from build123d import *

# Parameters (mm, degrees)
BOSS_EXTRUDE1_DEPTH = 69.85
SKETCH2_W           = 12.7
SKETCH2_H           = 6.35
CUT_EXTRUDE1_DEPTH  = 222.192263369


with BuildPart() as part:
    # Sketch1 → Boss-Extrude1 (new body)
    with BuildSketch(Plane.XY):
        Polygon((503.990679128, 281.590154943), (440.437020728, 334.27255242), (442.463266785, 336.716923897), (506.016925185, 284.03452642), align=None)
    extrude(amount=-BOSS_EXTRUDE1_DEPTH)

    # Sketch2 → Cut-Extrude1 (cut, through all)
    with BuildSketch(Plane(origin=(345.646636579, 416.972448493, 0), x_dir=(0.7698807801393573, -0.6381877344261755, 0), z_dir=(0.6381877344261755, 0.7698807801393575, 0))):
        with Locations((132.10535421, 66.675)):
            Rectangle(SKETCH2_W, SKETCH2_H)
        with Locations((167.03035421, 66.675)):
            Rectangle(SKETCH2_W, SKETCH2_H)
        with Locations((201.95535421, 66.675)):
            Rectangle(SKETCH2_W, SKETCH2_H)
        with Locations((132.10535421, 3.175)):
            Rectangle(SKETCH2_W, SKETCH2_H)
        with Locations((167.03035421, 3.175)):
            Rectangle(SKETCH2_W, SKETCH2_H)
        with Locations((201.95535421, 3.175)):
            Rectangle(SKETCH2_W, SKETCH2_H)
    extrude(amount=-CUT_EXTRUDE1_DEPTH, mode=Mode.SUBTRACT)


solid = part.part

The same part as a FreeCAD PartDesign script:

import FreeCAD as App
import Part
import Sketcher
Q = App.Units.Quantity

doc = App.newDocument("Part")
params = doc.addObject("Spreadsheet::Sheet", "Params")
for row, (alias, value) in enumerate([
    ("sketch1_length", "3.25 in"),
    ("sketch1_length2", "0.125 in"),
    ("pad1_length", "2.75 in"),
    ("sketch2_width", "0.5 in"),
    ("sketch2_height", "0.25 in"),
], start=1):
    params.set(f"A{row}", alias)
    params.set(f"B{row}", "=" + value)
    params.setAlias(f"B{row}", alias)

body = doc.addObject("PartDesign::Body", "Body")

# Sketch on XY plane
sketch1 = body.newObject("Sketcher::SketchObject", "Sketch")
sketch1.AttachmentSupport = (doc.getObject("XY_Plane"), [""])
sketch1.MapMode = "FlatFace"
sketch1.addGeometry([
    Part.LineSegment(App.Vector(440.4, 334.3, 0), App.Vector(504, 281.6, 0)),
    Part.LineSegment(App.Vector(504, 281.6, 0), App.Vector(506, 284, 0)),
    Part.LineSegment(App.Vector(506, 284, 0), App.Vector(442.5, 336.7, 0)),
    Part.LineSegment(App.Vector(442.5, 336.7, 0), App.Vector(440.4, 334.3, 0)),
], False)
sketch1.addConstraint([
    Sketcher.Constraint("Coincident", 0, 2, 1, 1),
    Sketcher.Constraint("Coincident", 1, 2, 2, 1),
    Sketcher.Constraint("Coincident", 2, 2, 3, 1),
    Sketcher.Constraint("Coincident", 3, 2, 0, 1),
    Sketcher.Constraint("Perpendicular", 0, 1),
    Sketcher.Constraint("Perpendicular", 1, 2),
    Sketcher.Constraint("Perpendicular", 2, 3),
    Sketcher.Constraint("Distance", 0, Q("3.25 in")),
    Sketcher.Constraint("Distance", 1, Q("0.125 in")),
    Sketcher.Constraint("DistanceX", -1, 1, 0, 2, 503.990679),
    Sketcher.Constraint("DistanceX", -1, 1, 3, 2, 440.437021),
    Sketcher.Constraint("DistanceY", -1, 1, 0, 2, 281.590155),
])
sketch1.setExpression("Constraints[7]", "Params.sketch1_length")
sketch1.setExpression("Constraints[8]", "Params.sketch1_length2")
pad1 = body.newObject("PartDesign::Pad", "Pad")
pad1.Profile = sketch1
pad1.setExpression("Length", "Params.pad1_length")
pad1.Reversed = True

# Sketch on an angled plane
sketch2 = body.newObject("Sketcher::SketchObject", "Sketch001")
sketch2.Placement = App.Placement(App.Vector(345.646637, 416.972448, 0), App.Rotation(App.Vector(0.76988078, -0.638187734, 0), App.Vector(0, 0, -0.999999999), App.Vector(0.638187734, 0.76988078, 0), "ZXY"))
sketch2.addGeometry([
    Part.LineSegment(App.Vector(126, 70, 0), App.Vector(126, 63, 0)),  # 0
    Part.LineSegment(App.Vector(126, 63, 0), App.Vector(138, 63, 0)),  # 1
    Part.LineSegment(App.Vector(138, 63, 0), App.Vector(138, 70, 0)),  # 2
    Part.LineSegment(App.Vector(138, 70, 0), App.Vector(126, 70, 0)),  # 3
    Part.LineSegment(App.Vector(161, 70, 0), App.Vector(161, 63, 0)),  # 4
    Part.LineSegment(App.Vector(161, 63, 0), App.Vector(173, 63, 0)),  # 5
    Part.LineSegment(App.Vector(173, 63, 0), App.Vector(173, 70, 0)),  # 6
    Part.LineSegment(App.Vector(173, 70, 0), App.Vector(161, 70, 0)),  # 7
    Part.LineSegment(App.Vector(196, 70, 0), App.Vector(196, 63, 0)),  # 8
    Part.LineSegment(App.Vector(196, 63, 0), App.Vector(208, 63, 0)),  # 9
    Part.LineSegment(App.Vector(208, 63, 0), App.Vector(208, 70, 0)),  # 10
    Part.LineSegment(App.Vector(208, 70, 0), App.Vector(196, 70, 0)),  # 11
    Part.LineSegment(App.Vector(126, 6, 0), App.Vector(126, 0, 0)),  # 12
    Part.LineSegment(App.Vector(126, 0, 0), App.Vector(138, 0, 0)),  # 13
    Part.LineSegment(App.Vector(138, 0, 0), App.Vector(138, 6, 0)),  # 14
    Part.LineSegment(App.Vector(138, 6, 0), App.Vector(126, 6, 0)),  # 15
    Part.LineSegment(App.Vector(161, 6, 0), App.Vector(161, 0, 0)),  # 16
    Part.LineSegment(App.Vector(161, 0, 0), App.Vector(173, 0, 0)),  # 17
    Part.LineSegment(App.Vector(173, 0, 0), App.Vector(173, 6, 0)),  # 18
    Part.LineSegment(App.Vector(173, 6, 0), App.Vector(161, 6, 0)),  # 19
    Part.LineSegment(App.Vector(196, 6, 0), App.Vector(196, 0, 0)),  # 20
    Part.LineSegment(App.Vector(196, 0, 0), App.Vector(208, 0, 0)),  # 21
    Part.LineSegment(App.Vector(208, 0, 0), App.Vector(208, 6, 0)),  # 22
    Part.LineSegment(App.Vector(208, 6, 0), App.Vector(196, 6, 0)),  # 23
], False)
sketch2.addConstraint([
    Sketcher.Constraint("Coincident", 0, 2, 1, 1),
    Sketcher.Constraint("Coincident", 1, 2, 2, 1),
    Sketcher.Constraint("Coincident", 2, 2, 3, 1),
    Sketcher.Constraint("Coincident", 3, 2, 0, 1),
    Sketcher.Constraint("Coincident", 4, 2, 5, 1),
    Sketcher.Constraint("Coincident", 5, 2, 6, 1),
    Sketcher.Constraint("Coincident", 6, 2, 7, 1),
    Sketcher.Constraint("Coincident", 7, 2, 4, 1),
    Sketcher.Constraint("Coincident", 8, 2, 9, 1),
    Sketcher.Constraint("Coincident", 9, 2, 10, 1),
    Sketcher.Constraint("Coincident", 10, 2, 11, 1),
    Sketcher.Constraint("Coincident", 11, 2, 8, 1),
    Sketcher.Constraint("Coincident", 12, 2, 13, 1),
    Sketcher.Constraint("Coincident", 13, 2, 14, 1),
    Sketcher.Constraint("Coincident", 14, 2, 15, 1),
    Sketcher.Constraint("Coincident", 15, 2, 12, 1),
    Sketcher.Constraint("Coincident", 16, 2, 17, 1),
    Sketcher.Constraint("Coincident", 17, 2, 18, 1),
    Sketcher.Constraint("Coincident", 18, 2, 19, 1),
    Sketcher.Constraint("Coincident", 19, 2, 16, 1),
    Sketcher.Constraint("Coincident", 20, 2, 21, 1),
    Sketcher.Constraint("Coincident", 21, 2, 22, 1),
    Sketcher.Constraint("Coincident", 22, 2, 23, 1),
    Sketcher.Constraint("Coincident", 23, 2, 20, 1),
    Sketcher.Constraint("Vertical", 0),
    Sketcher.Constraint("Horizontal", 1),
    Sketcher.Constraint("Vertical", 2),
    Sketcher.Constraint("Horizontal", 3),
    Sketcher.Constraint("Vertical", 4),
    Sketcher.Constraint("Horizontal", 5),
    Sketcher.Constraint("Vertical", 6),
    Sketcher.Constraint("Horizontal", 7),
    Sketcher.Constraint("Vertical", 8),
    Sketcher.Constraint("Horizontal", 9),
    Sketcher.Constraint("Vertical", 10),
    Sketcher.Constraint("Horizontal", 11),
    Sketcher.Constraint("Vertical", 12),
    Sketcher.Constraint("Horizontal", 13),
    Sketcher.Constraint("Vertical", 14),
    Sketcher.Constraint("Horizontal", 15),
    Sketcher.Constraint("Vertical", 16),
    Sketcher.Constraint("Horizontal", 17),
    Sketcher.Constraint("Vertical", 18),
    Sketcher.Constraint("Horizontal", 19),
    Sketcher.Constraint("Vertical", 20),
    Sketcher.Constraint("Horizontal", 21),
    Sketcher.Constraint("Vertical", 22),
    Sketcher.Constraint("Horizontal", 23),
    Sketcher.Constraint("PointOnObject", 12, 2, -1),
    Sketcher.Constraint("PointOnObject", 16, 2, -1),
    Sketcher.Constraint("PointOnObject", 20, 2, -1),
    Sketcher.Constraint("Horizontal", 1, 2, 4, 2),
    Sketcher.Constraint("Horizontal", 3, 2, 6, 2),
    Sketcher.Constraint("Horizontal", 5, 2, 8, 2),
    Sketcher.Constraint("Horizontal", 7, 2, 10, 2),
    Sketcher.Constraint("Horizontal", 15, 2, 18, 2),
    Sketcher.Constraint("Horizontal", 19, 2, 22, 2),
    Sketcher.Constraint("Vertical", 3, 2, 12, 2),
    Sketcher.Constraint("Vertical", 2, 2, 13, 2),
    Sketcher.Constraint("Vertical", 7, 2, 16, 2),
    Sketcher.Constraint("Vertical", 6, 2, 17, 2),
    Sketcher.Constraint("Vertical", 11, 2, 20, 2),
    Sketcher.Constraint("Vertical", 10, 2, 21, 2),
    Sketcher.Constraint("Equal", 3, 5),
    Sketcher.Constraint("Equal", 7, 9),
    Sketcher.Constraint("Equal", 10, 12),
    Sketcher.Constraint("DistanceX", 1, 1, 1, 2, Q("0.5 in")),
    Sketcher.Constraint("DistanceY", 0, 2, 0, 1, Q("0.25 in")),
    Sketcher.Constraint("DistanceY", -1, 1, 0, 2, Q("2.5 in")),
    Sketcher.Constraint("DistanceX", 1, 2, 8, 2, Q("2.25 in")),
    Sketcher.Constraint("DistanceX", 1, 2, 4, 2, Q("0.875 in")),
    Sketcher.Constraint("DistanceX", -1, 1, 0, 2, 125.755354),
])
sketch2.setExpression("Constraints[66]", "Params.sketch2_width")
sketch2.setExpression("Constraints[67]", "Params.sketch2_height")
pocket1 = body.newObject("PartDesign::Pocket", "Pocket")
pocket1.Profile = sketch2
pocket1.Type = "ThroughAll"

doc.recompute()
